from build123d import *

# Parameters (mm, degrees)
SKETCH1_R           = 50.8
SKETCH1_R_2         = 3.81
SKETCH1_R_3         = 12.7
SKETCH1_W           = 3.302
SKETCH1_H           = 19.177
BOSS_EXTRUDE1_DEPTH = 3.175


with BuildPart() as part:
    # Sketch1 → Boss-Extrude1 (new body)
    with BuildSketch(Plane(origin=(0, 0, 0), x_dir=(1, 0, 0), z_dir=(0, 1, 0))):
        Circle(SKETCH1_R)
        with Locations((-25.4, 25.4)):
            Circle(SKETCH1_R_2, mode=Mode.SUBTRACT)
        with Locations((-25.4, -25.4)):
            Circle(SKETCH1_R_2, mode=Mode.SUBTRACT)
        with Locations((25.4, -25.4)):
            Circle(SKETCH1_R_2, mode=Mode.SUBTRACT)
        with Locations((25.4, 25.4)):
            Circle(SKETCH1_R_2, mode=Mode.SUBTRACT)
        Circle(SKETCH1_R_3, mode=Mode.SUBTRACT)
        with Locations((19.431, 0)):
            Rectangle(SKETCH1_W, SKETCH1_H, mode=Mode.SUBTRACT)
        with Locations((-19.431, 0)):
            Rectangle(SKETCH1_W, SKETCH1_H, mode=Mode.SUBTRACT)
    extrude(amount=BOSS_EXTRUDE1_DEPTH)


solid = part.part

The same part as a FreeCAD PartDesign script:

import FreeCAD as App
import Part
import Sketcher
from FreeCAD import Vector
Q = App.Units.Quantity

doc = App.newDocument("Part")
body = doc.addObject("PartDesign::Body", "Body")

sketch1 = doc.addObject("Sketcher::SketchObject", "Sketch")
body.addObject(sketch1)
sketch1.AttachmentSupport = (doc.XZ_Plane, [""])
sketch1.MapMode = "FlatFace"
sketch1.addGeometry([
    Part.Circle(Vector(0, 0, 0), Vector(0, 0, 1), 50.8),
    Part.Circle(Vector(-25.4, 25.4, 0), Vector(0, 0, 1), 3.8),
    Part.LineSegment(Vector(-17.8, 9.6, 0), Vector(-21.1, 9.6, 0)),
    Part.LineSegment(Vector(-21.1, 9.6, 0), Vector(-21.1, -9.6, 0)),
    Part.LineSegment(Vector(-21.1, -9.6, 0), Vector(-17.8, -9.6, 0)),
    Part.LineSegment(Vector(-17.8, -9.6, 0), Vector(-17.8, 9.6, 0)),
    Part.Circle(Vector(25.4, 25.4, 0), Vector(0, 0, 1), 3.8),
    Part.Circle(Vector(0, 0, 0), Vector(0, 0, 1), 12.7),
    Part.LineSegment(Vector(21.1, 9.6, 0), Vector(17.8, 9.6, 0)),
    Part.LineSegment(Vector(17.8, 9.6, 0), Vector(17.8, -9.6, 0)),
    Part.LineSegment(Vector(17.8, -9.6, 0), Vector(21.1, -9.6, 0)),
    Part.LineSegment(Vector(21.1, -9.6, 0), Vector(21.1, 9.6, 0)),
    Part.Circle(Vector(-25.4, -25.4, 0), Vector(0, 0, 1), 3.8),
    Part.Circle(Vector(25.4, -25.4, 0), Vector(0, 0, 1), 3.8),
], False)
sketch1.addConstraint([
    Sketcher.Constraint("Coincident", 2, 2, 3, 1),
    Sketcher.Constraint("Coincident", 3, 2, 4, 1),
    Sketcher.Constraint("Coincident", 4, 2, 5, 1),
    Sketcher.Constraint("Coincident", 5, 2, 2, 1),
    Sketcher.Constraint("Coincident", 8, 2, 9, 1),
    Sketcher.Constraint("Coincident", 9, 2, 10, 1),
    Sketcher.Constraint("Coincident", 10, 2, 11, 1),
    Sketcher.Constraint("Coincident", 11, 2, 8, 1),
    Sketcher.Constraint("Horizontal", 2),
    Sketcher.Constraint("Vertical", 3),
    Sketcher.Constraint("Horizontal", 4),
    Sketcher.Constraint("Vertical", 5),
    Sketcher.Constraint("Horizontal", 8),
    Sketcher.Constraint("Vertical", 9),
    Sketcher.Constraint("Horizontal", 10),
    Sketcher.Constraint("Vertical", 11),
    Sketcher.Constraint("Coincident", 0, 3, -1, 1),
    Sketcher.Constraint("Coincident", 7, 3, -1, 1),
    Sketcher.Constraint("Equal", 1, 6),
    Sketcher.Constraint("Equal", 6, 12),
    Sketcher.Constraint("Equal", 12, 13),
    Sketcher.Constraint("Symmetric", 6, 3, 12, 3, -1, 1),
    Sketcher.Constraint("Symmetric", 1, 3, 13, 3, -1, 1),
    Sketcher.Constraint("Symmetric", 4, 2, 8, 2, -1, 1),
    Sketcher.Constraint("Symmetric", 2, 2, 10, 2, -1, 1),
    Sketcher.Constraint("Symmetric", 1, 3, 6, 3, -2),
    Sketcher.Constraint("Horizontal", 5, 2, 8, 2),
    Sketcher.Constraint("Diameter", 0, Q("4 in")),
    Sketcher.Constraint("Diameter", 7, Q("1 in")),
    Sketcher.Constraint("Diameter", 1, Q("0.3 in")),
    Sketcher.Constraint("DistanceX", 1, 3, -1, 1, Q("1 in")),
    Sketcher.Constraint("DistanceY", -1, 1, 1, 3, Q("1 in")),
    Sketcher.Constraint("DistanceX", 2, 2, 2, 1, Q("0.13 in")),
    Sketcher.Constraint("DistanceX", 4, 2, -1, 1, Q("0.7 in")),
    Sketcher.Constraint("DistanceY", 3, 2, 3, 1, Q("0.755 in")),
])
pad1 = doc.addObject("PartDesign::Pad", "Pad")
body.addObject(pad1)
pad1.Profile = sketch1
pad1.Length = Q("0.125 in")
pad1.Reversed = True

doc.recompute()
